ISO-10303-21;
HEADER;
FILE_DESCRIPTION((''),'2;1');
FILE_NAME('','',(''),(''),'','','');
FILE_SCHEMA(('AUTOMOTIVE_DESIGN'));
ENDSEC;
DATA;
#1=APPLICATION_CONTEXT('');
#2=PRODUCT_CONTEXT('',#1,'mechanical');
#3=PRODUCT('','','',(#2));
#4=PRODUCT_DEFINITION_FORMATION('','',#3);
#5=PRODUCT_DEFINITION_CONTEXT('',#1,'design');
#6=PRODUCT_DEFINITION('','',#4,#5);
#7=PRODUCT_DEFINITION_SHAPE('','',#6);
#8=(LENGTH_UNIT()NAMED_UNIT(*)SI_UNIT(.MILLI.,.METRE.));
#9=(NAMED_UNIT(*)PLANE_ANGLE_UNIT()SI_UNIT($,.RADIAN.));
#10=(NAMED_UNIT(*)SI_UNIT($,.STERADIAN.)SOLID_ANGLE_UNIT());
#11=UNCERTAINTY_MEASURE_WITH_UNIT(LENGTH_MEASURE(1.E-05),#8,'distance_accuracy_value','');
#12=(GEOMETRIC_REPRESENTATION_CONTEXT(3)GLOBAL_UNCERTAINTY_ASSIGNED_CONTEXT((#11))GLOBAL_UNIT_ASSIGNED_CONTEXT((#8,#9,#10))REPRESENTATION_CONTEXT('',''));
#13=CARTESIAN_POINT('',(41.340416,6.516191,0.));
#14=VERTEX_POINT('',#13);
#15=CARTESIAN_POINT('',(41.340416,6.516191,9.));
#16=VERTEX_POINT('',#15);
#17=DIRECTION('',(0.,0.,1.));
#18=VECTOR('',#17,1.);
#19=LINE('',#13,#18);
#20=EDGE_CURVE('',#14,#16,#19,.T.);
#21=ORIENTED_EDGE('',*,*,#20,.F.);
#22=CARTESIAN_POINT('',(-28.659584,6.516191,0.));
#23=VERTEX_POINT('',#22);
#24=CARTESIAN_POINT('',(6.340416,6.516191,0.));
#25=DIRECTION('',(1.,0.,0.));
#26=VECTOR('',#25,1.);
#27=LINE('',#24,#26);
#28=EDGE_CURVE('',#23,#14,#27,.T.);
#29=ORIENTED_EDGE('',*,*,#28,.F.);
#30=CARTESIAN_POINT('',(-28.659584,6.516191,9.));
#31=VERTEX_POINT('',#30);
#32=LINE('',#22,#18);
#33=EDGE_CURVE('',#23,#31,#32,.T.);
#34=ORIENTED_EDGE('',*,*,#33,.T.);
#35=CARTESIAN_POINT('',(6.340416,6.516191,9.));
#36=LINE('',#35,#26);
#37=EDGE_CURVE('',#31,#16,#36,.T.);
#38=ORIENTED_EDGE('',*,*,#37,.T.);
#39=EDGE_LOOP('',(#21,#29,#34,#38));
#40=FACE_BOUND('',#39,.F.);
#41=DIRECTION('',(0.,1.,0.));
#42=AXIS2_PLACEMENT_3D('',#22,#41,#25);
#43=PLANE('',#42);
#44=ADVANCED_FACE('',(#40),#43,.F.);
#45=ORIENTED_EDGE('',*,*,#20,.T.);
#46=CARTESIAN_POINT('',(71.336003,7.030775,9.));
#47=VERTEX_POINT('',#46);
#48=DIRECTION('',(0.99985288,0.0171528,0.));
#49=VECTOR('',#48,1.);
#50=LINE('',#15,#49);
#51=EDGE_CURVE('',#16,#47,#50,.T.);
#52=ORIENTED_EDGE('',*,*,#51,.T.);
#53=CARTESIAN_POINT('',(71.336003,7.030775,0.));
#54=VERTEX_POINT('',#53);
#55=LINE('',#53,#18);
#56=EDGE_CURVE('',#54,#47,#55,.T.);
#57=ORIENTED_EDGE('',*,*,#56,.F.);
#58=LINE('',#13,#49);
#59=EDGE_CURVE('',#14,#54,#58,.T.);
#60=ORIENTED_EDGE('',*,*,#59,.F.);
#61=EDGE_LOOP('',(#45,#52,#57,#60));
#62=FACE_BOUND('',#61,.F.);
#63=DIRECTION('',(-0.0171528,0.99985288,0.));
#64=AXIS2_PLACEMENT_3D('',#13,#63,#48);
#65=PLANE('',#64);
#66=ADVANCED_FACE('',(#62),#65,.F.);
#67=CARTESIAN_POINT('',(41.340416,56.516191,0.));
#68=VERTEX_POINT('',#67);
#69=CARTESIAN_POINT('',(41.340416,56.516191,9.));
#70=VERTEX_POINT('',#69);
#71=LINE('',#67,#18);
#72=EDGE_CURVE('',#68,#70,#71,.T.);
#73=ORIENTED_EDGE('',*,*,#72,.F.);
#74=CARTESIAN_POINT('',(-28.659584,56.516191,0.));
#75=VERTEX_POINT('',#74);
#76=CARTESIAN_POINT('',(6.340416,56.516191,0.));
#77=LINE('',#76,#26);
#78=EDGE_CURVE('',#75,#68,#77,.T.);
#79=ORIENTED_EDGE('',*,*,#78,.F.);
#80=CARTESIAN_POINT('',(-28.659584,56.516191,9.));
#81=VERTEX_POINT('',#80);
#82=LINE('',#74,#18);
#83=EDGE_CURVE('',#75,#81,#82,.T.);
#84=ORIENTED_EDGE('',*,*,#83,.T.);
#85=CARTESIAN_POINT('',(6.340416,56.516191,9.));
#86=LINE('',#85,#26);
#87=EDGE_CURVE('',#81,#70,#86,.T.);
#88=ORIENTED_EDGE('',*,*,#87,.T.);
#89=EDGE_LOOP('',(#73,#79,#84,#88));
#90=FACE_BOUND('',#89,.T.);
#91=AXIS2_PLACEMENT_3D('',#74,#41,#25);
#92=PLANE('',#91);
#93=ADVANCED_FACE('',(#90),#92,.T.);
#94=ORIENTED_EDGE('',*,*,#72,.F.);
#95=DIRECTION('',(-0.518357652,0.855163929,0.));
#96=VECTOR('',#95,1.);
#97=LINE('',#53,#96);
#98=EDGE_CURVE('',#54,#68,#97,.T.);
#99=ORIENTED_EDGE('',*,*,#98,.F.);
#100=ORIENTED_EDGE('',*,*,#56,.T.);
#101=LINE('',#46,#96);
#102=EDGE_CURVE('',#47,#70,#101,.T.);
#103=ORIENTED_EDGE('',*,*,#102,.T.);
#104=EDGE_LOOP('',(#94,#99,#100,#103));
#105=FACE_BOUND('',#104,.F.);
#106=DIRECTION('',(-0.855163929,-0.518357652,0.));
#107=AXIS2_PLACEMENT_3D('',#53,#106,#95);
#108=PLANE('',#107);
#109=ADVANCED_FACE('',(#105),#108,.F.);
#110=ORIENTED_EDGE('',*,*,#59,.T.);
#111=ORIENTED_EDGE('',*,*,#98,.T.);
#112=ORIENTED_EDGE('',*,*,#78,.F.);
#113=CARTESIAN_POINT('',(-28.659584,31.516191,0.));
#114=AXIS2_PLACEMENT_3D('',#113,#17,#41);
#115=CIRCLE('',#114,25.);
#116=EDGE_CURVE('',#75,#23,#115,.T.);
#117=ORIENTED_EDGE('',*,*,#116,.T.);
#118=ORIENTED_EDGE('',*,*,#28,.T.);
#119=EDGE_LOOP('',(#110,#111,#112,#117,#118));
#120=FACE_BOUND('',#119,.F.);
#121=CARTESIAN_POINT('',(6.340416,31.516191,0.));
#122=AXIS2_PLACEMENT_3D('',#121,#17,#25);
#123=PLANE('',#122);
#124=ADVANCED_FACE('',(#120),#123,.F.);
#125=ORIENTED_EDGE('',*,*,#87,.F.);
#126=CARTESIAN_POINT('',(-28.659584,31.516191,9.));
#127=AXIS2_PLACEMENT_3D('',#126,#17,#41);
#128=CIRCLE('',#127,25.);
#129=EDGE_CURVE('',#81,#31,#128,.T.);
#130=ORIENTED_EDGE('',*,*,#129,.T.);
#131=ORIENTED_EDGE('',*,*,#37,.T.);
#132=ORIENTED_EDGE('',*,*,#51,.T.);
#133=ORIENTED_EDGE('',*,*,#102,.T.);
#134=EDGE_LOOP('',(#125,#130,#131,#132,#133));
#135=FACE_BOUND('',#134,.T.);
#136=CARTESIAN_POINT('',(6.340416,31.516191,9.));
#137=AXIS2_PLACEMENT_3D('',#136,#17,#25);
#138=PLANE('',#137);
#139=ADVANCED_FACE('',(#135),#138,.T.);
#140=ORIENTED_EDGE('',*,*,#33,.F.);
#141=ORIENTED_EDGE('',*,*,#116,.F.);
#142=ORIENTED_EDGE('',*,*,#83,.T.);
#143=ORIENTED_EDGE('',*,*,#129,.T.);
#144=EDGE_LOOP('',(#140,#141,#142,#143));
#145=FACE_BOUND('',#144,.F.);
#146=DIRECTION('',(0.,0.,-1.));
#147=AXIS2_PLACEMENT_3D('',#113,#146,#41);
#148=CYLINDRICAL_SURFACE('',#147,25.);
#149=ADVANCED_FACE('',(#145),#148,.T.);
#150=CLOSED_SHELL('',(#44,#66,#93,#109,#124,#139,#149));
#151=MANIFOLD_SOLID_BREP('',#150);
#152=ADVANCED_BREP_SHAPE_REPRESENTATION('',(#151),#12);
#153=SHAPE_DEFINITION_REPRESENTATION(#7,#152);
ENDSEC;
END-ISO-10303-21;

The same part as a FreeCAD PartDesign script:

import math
import FreeCAD as App
import Part
import Sketcher

doc = App.newDocument("Part")
body = doc.addObject("PartDesign::Body", "Body")

sketch1 = body.newObject("Sketcher::SketchObject", "Sketch")
sketch1.AttachmentSupport = (doc.getObject("XY_Plane"), [""])
sketch1.MapMode = "FlatFace"
sketch1.addGeometry(Part.LineSegment(App.Vector(-28.659584, 6.516191, 0), App.Vector(41.340416, 6.516191, 0)), False)
sketch1.addGeometry(Part.LineSegment(App.Vector(41.340416, 6.516191, 0), App.Vector(71.336003, 7.030775, 0)), False)
sketch1.addGeometry(Part.LineSegment(App.Vector(71.336003, 7.030775, 0), App.Vector(41.340416, 56.516191, 0)), False)
sketch1.addGeometry(Part.LineSegment(App.Vector(41.340416, 56.516191, 0), App.Vector(-28.659584, 56.516191, 0)), False)
sketch1.addGeometry(Part.ArcOfCircle(Part.Circle(App.Vector(-28.659584, 31.516191, 0), App.Vector(0, 0, 1), 25), math.radians(90), math.radians(270)), False)
sketch1.addConstraint(Sketcher.Constraint("Coincident", 0, 2, 1, 1))
sketch1.addConstraint(Sketcher.Constraint("Coincident", 1, 2, 2, 1))
sketch1.addConstraint(Sketcher.Constraint("Coincident", 2, 2, 3, 1))
sketch1.addConstraint(Sketcher.Constraint("Tangent", 3, 2, 4, 1))
sketch1.addConstraint(Sketcher.Constraint("Tangent", 4, 2, 0, 1))
sketch1.addConstraint(Sketcher.Constraint("Horizontal", 0))
sketch1.addConstraint(Sketcher.Constraint("Horizontal", 3))
sketch1.addConstraint(Sketcher.Constraint("Vertical", 0, 2, 2, 2))
sketch1.addConstraint(Sketcher.Constraint("Radius", 4, 25.0))
sketch1.addConstraint(Sketcher.Constraint("DistanceX", 0, 1, 0, 2, 70.0))
sketch1.addConstraint(Sketcher.Constraint("Distance", 1, 30.000001))
sketch1.addConstraint(Sketcher.Constraint("DistanceY", -1, 1, 4, 3, 31.516191))
sketch1.addConstraint(Sketcher.Constraint("Distance", 2, 57.866585))
sketch1.addConstraint(Sketcher.Constraint("DistanceX", 4, 3, -1, 1, 28.659584))
pad1 = body.newObject("PartDesign::Pad", "Pad")
pad1.Profile = sketch1
pad1.Length = 9

doc.recompute()
